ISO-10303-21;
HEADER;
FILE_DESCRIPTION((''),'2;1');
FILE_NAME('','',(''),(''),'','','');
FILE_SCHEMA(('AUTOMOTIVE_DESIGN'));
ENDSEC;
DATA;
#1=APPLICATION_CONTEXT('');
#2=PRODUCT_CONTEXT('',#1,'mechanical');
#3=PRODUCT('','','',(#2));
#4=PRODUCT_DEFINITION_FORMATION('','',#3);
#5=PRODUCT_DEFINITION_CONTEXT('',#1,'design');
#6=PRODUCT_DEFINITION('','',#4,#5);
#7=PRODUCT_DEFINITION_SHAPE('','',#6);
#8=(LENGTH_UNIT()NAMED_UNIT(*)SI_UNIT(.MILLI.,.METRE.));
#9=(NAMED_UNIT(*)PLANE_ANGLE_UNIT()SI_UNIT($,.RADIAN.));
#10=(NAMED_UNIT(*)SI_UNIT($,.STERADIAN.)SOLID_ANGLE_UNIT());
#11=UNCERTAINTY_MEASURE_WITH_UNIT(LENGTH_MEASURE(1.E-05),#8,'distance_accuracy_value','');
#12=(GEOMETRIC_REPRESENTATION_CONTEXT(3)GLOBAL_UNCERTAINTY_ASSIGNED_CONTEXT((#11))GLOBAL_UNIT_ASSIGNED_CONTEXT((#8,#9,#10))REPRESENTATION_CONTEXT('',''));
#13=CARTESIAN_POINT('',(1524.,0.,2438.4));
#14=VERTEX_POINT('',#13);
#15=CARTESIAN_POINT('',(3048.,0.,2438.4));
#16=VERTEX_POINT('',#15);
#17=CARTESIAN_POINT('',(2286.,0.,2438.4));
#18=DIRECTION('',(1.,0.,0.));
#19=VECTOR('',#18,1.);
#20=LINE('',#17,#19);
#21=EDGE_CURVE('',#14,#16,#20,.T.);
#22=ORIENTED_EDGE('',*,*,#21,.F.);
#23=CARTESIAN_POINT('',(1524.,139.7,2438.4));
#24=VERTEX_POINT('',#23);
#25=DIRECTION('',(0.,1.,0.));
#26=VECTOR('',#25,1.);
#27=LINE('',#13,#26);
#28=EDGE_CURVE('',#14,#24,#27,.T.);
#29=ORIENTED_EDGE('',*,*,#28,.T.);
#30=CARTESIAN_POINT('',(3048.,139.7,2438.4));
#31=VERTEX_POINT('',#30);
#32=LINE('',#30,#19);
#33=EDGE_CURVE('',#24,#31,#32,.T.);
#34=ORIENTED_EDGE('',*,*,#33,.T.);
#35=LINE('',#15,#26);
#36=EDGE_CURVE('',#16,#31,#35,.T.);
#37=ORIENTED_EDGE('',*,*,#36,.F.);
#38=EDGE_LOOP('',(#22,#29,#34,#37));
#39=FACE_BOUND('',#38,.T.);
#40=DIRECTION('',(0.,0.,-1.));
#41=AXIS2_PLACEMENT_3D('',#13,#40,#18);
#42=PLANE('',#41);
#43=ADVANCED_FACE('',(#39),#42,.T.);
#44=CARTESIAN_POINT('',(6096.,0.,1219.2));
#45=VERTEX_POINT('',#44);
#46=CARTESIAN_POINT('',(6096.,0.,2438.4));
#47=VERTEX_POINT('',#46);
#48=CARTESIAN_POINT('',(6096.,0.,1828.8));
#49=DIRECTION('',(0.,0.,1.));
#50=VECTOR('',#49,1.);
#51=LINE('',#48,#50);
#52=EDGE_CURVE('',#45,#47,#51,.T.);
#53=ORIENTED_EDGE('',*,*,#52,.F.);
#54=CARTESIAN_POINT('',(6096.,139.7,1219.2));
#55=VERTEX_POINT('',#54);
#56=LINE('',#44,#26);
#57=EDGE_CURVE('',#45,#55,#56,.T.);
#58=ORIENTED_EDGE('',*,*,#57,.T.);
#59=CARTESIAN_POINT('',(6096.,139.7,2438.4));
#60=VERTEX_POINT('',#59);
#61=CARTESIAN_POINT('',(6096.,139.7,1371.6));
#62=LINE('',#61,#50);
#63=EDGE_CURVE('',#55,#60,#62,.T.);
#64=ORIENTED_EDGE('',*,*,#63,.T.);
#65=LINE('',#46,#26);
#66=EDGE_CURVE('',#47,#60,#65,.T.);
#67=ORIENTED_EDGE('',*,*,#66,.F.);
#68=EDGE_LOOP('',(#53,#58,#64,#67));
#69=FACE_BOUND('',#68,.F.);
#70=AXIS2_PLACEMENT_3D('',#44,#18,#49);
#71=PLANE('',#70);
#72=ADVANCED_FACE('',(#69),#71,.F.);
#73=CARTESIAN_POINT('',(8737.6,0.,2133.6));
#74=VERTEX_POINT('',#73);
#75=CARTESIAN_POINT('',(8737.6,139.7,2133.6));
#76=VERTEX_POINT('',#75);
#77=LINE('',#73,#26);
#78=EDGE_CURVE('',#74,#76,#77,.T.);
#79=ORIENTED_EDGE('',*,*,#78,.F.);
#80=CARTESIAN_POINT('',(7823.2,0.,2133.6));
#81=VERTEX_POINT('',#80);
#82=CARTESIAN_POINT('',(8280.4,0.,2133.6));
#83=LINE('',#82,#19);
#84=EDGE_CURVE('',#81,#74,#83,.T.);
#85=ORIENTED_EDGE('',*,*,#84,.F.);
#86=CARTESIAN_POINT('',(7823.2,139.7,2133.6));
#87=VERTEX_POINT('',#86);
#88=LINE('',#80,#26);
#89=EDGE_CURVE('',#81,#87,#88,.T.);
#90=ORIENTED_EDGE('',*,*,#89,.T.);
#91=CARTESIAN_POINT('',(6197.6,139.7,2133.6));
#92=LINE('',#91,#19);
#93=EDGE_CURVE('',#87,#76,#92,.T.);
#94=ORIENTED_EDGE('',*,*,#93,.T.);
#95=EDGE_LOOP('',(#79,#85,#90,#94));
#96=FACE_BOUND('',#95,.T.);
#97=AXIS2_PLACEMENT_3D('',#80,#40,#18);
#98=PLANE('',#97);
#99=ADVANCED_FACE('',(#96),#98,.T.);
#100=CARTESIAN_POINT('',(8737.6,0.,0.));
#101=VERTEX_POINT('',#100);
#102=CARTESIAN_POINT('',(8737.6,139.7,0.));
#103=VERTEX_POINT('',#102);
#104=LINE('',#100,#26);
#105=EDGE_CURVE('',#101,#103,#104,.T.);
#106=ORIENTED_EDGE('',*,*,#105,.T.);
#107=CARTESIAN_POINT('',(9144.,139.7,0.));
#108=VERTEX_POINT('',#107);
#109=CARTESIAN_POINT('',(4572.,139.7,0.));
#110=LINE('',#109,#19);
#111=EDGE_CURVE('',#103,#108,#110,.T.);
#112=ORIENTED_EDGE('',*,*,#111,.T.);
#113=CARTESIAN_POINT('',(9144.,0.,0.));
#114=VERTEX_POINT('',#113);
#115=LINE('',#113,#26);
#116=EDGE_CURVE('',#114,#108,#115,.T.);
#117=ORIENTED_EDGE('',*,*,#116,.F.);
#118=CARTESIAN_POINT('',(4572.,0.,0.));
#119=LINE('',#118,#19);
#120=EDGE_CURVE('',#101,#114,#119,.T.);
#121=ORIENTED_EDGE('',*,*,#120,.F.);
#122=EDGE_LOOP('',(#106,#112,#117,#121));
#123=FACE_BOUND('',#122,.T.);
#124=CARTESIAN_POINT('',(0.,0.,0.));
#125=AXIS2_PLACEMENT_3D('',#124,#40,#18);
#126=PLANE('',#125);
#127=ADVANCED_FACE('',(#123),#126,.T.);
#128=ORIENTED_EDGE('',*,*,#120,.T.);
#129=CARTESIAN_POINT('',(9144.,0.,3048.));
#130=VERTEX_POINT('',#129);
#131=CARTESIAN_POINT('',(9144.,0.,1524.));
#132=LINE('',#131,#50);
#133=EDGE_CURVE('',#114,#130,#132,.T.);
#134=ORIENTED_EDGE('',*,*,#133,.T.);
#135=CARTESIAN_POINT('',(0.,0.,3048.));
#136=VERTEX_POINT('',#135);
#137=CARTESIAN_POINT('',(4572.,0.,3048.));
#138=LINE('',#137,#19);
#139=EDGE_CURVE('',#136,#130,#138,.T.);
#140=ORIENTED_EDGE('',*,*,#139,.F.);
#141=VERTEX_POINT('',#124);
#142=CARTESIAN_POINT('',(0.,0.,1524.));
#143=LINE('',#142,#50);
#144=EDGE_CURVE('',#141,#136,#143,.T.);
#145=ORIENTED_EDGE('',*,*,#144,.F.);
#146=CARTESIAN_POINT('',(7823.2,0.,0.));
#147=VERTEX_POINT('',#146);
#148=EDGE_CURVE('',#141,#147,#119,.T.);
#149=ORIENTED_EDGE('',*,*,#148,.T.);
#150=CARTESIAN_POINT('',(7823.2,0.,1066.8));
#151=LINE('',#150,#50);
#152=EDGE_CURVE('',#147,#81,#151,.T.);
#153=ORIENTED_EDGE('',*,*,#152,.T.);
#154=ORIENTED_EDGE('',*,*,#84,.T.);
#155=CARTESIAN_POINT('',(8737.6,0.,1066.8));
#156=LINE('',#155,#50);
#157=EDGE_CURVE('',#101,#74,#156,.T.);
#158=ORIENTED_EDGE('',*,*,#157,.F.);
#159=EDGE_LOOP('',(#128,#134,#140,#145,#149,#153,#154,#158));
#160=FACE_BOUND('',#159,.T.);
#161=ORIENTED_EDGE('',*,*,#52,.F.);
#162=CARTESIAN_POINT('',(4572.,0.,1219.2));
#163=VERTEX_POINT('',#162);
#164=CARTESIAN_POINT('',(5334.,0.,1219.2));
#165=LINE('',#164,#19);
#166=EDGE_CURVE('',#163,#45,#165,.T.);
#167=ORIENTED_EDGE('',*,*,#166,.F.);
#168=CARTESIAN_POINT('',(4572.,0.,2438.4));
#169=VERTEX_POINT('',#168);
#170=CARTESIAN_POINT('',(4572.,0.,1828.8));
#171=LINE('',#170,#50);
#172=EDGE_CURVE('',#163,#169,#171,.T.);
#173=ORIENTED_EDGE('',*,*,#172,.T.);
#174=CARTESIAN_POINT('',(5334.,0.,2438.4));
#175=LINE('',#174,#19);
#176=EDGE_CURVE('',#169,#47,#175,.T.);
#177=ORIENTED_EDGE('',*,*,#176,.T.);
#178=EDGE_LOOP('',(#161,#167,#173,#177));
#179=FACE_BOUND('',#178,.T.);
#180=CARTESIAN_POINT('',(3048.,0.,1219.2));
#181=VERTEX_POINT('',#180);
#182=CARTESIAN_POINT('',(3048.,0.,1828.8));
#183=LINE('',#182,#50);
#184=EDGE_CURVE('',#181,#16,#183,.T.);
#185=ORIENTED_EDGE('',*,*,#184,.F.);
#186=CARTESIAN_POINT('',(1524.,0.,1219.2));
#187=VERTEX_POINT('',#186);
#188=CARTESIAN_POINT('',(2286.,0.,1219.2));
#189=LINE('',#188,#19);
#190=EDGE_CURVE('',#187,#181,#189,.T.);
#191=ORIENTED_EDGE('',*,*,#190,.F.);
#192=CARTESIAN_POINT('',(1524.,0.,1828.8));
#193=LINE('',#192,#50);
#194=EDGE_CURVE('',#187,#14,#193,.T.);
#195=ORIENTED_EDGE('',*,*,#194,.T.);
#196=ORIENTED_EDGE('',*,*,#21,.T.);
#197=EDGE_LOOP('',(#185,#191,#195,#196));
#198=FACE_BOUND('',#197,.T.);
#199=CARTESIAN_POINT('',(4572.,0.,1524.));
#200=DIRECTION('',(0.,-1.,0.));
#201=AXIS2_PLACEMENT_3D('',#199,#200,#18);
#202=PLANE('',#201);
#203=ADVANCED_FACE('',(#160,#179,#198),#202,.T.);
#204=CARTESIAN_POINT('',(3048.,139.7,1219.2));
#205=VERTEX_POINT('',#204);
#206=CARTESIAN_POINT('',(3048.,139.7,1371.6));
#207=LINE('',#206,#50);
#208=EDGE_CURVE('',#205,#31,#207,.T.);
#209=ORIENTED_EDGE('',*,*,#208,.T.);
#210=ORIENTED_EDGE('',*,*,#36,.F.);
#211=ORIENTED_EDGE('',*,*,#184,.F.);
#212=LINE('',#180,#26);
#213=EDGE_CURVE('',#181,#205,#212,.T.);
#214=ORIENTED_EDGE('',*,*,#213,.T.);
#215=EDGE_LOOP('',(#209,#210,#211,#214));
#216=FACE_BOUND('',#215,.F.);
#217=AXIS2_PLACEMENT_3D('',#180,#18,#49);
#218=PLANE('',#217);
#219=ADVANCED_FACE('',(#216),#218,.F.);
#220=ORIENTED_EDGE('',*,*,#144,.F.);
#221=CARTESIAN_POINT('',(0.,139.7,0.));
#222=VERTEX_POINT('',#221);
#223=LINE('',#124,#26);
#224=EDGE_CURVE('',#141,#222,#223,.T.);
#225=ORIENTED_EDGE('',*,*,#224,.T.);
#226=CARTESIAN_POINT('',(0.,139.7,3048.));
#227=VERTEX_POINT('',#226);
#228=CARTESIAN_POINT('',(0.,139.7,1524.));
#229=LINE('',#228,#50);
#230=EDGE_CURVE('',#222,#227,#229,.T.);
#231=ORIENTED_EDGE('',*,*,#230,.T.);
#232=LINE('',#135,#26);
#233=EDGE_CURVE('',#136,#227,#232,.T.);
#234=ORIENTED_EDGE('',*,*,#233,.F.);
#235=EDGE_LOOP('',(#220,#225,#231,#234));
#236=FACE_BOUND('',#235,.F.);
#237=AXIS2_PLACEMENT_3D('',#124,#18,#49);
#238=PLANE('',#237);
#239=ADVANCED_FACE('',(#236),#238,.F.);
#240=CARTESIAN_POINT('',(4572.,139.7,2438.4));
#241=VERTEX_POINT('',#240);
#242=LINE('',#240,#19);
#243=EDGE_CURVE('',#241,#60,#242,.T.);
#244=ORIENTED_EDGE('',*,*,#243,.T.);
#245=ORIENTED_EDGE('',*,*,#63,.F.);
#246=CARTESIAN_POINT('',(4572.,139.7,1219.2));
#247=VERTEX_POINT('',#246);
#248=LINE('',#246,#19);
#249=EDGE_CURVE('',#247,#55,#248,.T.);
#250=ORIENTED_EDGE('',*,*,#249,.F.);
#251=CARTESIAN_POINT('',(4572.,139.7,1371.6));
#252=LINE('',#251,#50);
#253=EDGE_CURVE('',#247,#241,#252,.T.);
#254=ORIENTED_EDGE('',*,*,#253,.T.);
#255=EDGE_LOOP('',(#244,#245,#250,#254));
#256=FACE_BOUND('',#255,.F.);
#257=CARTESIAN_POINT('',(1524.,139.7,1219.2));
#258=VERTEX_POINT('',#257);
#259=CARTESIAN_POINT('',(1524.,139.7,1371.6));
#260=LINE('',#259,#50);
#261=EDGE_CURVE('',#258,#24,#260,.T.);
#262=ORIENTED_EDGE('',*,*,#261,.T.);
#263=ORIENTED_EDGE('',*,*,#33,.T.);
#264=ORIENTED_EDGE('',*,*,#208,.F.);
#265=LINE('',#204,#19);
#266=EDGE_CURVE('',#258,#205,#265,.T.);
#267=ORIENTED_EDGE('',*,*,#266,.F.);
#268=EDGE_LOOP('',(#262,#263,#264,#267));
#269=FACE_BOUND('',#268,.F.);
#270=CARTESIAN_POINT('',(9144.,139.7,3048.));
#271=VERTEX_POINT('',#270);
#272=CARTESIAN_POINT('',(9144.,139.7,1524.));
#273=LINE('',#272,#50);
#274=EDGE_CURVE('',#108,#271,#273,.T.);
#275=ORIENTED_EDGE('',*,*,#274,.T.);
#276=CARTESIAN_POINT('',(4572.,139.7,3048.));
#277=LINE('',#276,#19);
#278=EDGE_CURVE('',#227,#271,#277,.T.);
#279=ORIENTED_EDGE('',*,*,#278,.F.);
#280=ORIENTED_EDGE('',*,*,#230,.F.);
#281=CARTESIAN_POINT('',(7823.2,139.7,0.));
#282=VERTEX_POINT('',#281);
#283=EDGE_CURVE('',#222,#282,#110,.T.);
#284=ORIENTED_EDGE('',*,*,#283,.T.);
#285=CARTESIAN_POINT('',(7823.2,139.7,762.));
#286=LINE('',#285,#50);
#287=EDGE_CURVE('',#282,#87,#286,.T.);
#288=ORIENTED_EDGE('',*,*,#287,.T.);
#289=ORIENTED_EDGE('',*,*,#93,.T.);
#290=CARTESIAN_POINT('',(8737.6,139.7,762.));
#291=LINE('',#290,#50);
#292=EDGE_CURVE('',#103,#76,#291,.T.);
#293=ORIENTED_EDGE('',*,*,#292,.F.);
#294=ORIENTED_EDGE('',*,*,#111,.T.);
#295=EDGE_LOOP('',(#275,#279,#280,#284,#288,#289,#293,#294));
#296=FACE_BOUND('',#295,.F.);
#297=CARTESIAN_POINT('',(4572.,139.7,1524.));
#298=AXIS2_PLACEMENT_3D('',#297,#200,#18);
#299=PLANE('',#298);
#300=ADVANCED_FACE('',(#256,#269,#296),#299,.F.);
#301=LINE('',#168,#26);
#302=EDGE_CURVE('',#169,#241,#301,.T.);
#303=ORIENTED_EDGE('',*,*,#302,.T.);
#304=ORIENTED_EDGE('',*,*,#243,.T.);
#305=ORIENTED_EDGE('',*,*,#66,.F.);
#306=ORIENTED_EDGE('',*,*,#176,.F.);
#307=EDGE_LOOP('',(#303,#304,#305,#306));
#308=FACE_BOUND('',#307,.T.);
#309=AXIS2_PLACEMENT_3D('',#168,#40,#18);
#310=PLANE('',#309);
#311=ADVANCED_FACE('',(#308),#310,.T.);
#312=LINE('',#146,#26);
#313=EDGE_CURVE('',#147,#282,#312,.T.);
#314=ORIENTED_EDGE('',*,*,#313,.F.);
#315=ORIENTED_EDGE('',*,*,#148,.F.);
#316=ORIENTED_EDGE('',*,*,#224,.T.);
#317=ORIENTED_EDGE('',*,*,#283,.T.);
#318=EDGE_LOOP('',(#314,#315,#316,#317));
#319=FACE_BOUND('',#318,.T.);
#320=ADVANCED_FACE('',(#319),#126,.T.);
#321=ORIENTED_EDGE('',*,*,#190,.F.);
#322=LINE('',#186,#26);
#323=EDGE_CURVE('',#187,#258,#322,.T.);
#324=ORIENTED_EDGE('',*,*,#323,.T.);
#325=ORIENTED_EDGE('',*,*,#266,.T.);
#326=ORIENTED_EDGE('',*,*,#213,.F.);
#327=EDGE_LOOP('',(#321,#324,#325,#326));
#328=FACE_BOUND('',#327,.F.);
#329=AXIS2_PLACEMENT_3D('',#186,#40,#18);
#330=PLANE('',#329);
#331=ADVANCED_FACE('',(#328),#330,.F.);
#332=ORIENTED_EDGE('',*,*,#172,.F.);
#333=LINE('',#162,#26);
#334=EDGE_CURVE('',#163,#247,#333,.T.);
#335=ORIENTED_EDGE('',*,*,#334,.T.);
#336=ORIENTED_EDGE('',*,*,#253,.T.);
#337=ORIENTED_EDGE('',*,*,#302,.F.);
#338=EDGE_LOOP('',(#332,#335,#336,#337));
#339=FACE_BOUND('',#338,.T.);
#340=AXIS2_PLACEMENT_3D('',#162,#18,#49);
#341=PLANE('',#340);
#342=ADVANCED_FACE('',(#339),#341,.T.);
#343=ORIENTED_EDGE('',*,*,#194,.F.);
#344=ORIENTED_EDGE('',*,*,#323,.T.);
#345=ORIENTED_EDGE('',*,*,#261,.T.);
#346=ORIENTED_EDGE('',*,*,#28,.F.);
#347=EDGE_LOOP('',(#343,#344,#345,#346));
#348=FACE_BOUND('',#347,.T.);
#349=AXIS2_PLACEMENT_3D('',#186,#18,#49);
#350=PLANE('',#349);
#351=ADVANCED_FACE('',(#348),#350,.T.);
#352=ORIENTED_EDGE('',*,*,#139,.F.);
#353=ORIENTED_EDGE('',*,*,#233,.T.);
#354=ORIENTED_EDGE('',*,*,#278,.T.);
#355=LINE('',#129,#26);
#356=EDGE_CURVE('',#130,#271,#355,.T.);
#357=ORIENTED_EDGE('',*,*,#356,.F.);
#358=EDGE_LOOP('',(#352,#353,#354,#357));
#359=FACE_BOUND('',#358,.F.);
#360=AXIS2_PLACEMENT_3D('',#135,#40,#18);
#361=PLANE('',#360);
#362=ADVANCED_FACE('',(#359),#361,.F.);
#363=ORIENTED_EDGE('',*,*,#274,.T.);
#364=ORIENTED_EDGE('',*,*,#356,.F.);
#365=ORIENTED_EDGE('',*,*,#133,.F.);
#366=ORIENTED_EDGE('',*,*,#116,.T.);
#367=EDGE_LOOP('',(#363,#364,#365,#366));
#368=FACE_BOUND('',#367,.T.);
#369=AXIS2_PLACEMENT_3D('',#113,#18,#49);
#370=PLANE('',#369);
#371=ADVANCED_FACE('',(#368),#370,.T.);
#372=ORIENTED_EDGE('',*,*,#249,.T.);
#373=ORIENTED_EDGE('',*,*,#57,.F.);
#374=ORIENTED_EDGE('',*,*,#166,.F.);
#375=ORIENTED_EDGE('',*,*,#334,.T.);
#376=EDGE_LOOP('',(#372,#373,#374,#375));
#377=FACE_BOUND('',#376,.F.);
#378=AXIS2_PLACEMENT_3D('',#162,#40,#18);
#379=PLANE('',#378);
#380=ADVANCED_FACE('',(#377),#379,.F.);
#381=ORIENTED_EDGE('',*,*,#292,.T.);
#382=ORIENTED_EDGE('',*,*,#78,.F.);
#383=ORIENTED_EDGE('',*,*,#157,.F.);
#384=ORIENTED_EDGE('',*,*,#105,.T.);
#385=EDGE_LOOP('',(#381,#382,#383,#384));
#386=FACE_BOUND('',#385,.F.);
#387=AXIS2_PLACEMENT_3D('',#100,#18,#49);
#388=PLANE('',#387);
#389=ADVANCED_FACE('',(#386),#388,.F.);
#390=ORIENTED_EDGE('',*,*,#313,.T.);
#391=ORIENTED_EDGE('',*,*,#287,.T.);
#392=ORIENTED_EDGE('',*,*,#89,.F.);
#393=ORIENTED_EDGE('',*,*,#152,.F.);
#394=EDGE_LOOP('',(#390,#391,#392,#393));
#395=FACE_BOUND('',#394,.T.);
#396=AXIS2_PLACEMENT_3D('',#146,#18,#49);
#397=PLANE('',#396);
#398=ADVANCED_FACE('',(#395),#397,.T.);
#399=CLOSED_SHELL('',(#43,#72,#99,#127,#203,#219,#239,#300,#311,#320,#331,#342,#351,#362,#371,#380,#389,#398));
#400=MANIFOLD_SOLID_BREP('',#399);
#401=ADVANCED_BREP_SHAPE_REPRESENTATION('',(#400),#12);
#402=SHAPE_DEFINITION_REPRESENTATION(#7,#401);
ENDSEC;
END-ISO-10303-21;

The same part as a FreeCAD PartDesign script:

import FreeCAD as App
import Part
import Sketcher
from FreeCAD import Vector
Q = App.Units.Quantity


def add_polygon(sketch, points):
    """Adds a closed chain of lines whose ends are joined by coincident constraints."""
    first, n = sketch.GeometryCount, len(points)
    for a, b in zip(points, points[1:] + points[:1]):
        sketch.addGeometry(Part.LineSegment(App.Vector(*a, 0), App.Vector(*b, 0)), False)
    for i in range(n):
        sketch.addConstraint(Sketcher.Constraint("Coincident", first + i, 2, first + (i + 1) % n, 1))

doc = App.newDocument("Part")
body = doc.addObject("PartDesign::Body", "Body")

# Sketch on XZ plane
sketch1 = body.newObject("Sketcher::SketchObject", "Sketch")
sketch1.AttachmentSupport = (doc.getObject("XZ_Plane"), [""])
sketch1.MapMode = "FlatFace"
add_polygon(sketch1, [(0, 3048), (0, 0), (9144, 0), (9144, 3048)])  # lines 0-3
sketch1.addConstraint(Sketcher.Constraint("Vertical", 0))
sketch1.addConstraint(Sketcher.Constraint("Horizontal", 1))
sketch1.addConstraint(Sketcher.Constraint("Vertical", 2))
sketch1.addConstraint(Sketcher.Constraint("Horizontal", 3))
sketch1.addConstraint(Sketcher.Constraint("Coincident", 0, 2, -1, 1))
sketch1.addConstraint(Sketcher.Constraint("DistanceX", 1, 1, 1, 2, Q("360 in")))
sketch1.addConstraint(Sketcher.Constraint("DistanceY", 0, 2, 0, 1, Q("120 in")))
pad1 = body.newObject("PartDesign::Pad", "Pad")
pad1.Profile = sketch1
pad1.Length = Q("5.5 in")
pad1.Reversed = True

# Sketch on XZ plane
sketch2 = body.newObject("Sketcher::SketchObject", "Sketch001")
sketch2.AttachmentSupport = (doc.getObject("XZ_Plane"), [""])
sketch2.MapMode = "FlatFace"
add_polygon(sketch2, [(1524, 2438.4), (1524, 1219.2), (3048, 1219.2), (3048, 2438.4)])  # lines 0-3
add_polygon(sketch2, [(4572, 2438.4), (4572, 1219.2), (6096, 1219.2), (6096, 2438.4)])  # lines 4-7
sketch2.addConstraint(Sketcher.Constraint("Vertical", 0))
sketch2.addConstraint(Sketcher.Constraint("Horizontal", 1))
sketch2.addConstraint(Sketcher.Constraint("Vertical", 2))
sketch2.addConstraint(Sketcher.Constraint("Horizontal", 3))
sketch2.addConstraint(Sketcher.Constraint("Vertical", 4))
sketch2.addConstraint(Sketcher.Constraint("Horizontal", 5))
sketch2.addConstraint(Sketcher.Constraint("Vertical", 6))
sketch2.addConstraint(Sketcher.Constraint("Horizontal", 7))
sketch2.addConstraint(Sketcher.Constraint("Horizontal", 1, 2, 4, 2))
sketch2.addConstraint(Sketcher.Constraint("Horizontal", 3, 2, 6, 2))
sketch2.addConstraint(Sketcher.Constraint("Equal", 3, 5))
sketch2.addConstraint(Sketcher.Constraint("DistanceX", 1, 1, 1, 2, Q("60 in")))
sketch2.addConstraint(Sketcher.Constraint("DistanceY", 0, 2, 0, 1, Q("48 in")))
sketch2.addConstraint(Sketcher.Constraint("DistanceX", -1, 1, 0, 2, Q("60 in")))
sketch2.addConstraint(Sketcher.Constraint("DistanceY", -1, 1, 0, 2, Q("48 in")))
sketch2.addConstraint(Sketcher.Constraint("DistanceX", -1, 1, 4, 2, Q("180 in")))
pocket1 = body.newObject("PartDesign::Pocket", "Pocket")
pocket1.Profile = sketch2
pocket1.Type = "ThroughAll"

# Sketch on XZ plane
sketch3 = body.newObject("Sketcher::SketchObject", "Sketch002")
sketch3.AttachmentSupport = (doc.getObject("XZ_Plane"), [""])
sketch3.MapMode = "FlatFace"
add_polygon(sketch3, [(7823.2, 2133.6), (7823.2, 0), (8737.6, 0), (8737.6, 2133.6)])  # lines 0-3
sketch3.addConstraint(Sketcher.Constraint("Vertical", 0))
sketch3.addConstraint(Sketcher.Constraint("Horizontal", 1))
sketch3.addConstraint(Sketcher.Constraint("Vertical", 2))
sketch3.addConstraint(Sketcher.Constraint("Horizontal", 3))
sketch3.addConstraint(Sketcher.Constraint("PointOnObject", 0, 2, -1))
sketch3.addConstraint(Sketcher.Constraint("DistanceX", 1, 1, 1, 2, Q("36 in")))
sketch3.addConstraint(Sketcher.Constraint("DistanceY", 0, 2, 0, 1, Q("84 in")))
sketch3.addConstraint(Sketcher.Constraint("DistanceX", -1, 1, 0, 2, Q("308 in")))
pocket2 = body.newObject("PartDesign::Pocket", "Pocket001")
pocket2.Profile = sketch3
pocket2.Type = "ThroughAll"

doc.recompute()
